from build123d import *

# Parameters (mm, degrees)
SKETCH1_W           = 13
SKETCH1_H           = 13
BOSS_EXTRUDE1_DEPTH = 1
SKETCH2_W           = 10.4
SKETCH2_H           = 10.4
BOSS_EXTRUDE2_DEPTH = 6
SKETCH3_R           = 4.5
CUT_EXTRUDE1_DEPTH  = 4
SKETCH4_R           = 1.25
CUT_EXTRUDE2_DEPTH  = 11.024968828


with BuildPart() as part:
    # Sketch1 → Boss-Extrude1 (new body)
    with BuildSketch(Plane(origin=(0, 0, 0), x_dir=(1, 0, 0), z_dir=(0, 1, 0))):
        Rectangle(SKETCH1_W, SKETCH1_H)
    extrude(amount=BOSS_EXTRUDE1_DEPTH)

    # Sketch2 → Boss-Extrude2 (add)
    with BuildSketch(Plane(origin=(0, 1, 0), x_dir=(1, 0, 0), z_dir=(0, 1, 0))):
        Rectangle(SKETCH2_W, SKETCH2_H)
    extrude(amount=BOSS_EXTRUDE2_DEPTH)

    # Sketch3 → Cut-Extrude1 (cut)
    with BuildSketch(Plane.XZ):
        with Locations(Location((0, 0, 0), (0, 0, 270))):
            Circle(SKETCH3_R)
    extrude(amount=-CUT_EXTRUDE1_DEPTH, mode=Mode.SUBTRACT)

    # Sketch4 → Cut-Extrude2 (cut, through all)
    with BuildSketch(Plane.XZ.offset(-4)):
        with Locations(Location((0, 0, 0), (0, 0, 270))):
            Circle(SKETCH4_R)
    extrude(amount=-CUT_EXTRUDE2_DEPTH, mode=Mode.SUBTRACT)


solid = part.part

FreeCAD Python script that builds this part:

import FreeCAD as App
import Part
import Sketcher
from FreeCAD import Vector


def add_polygon(sketch, points):
    """Adds a closed chain of lines whose ends are joined by coincident constraints."""
    first, n = sketch.GeometryCount, len(points)
    for a, b in zip(points, points[1:] + points[:1]):
        sketch.addGeometry(Part.LineSegment(App.Vector(*a, 0), App.Vector(*b, 0)), False)
    for i in range(n):
        sketch.addConstraint(Sketcher.Constraint("Coincident", first + i, 2, first + (i + 1) % n, 1))

doc = App.newDocument("Part")
params = doc.addObject("Spreadsheet::Sheet", "Params")
for row, (alias, value) in enumerate([
    ("sketch1_width", "13 mm"),
    ("pad1_length", "1 mm"),
    ("sketch2_width", "10.4 mm"),
    ("pad2_length", "6 mm"),
    ("sketch3_diameter", "9 mm"),
    ("pocket1_length", "4 mm"),
    ("sketch4_diameter", "2.5 mm"),
], start=1):
    params.set(f"A{row}", alias)
    params.set(f"B{row}", "=" + value)
    params.setAlias(f"B{row}", alias)

body = doc.addObject("PartDesign::Body", "Body")

# Sketch on XZ plane
sketch1 = body.newObject("Sketcher::SketchObject", "Sketch")
sketch1.AttachmentSupport = (doc.getObject("XZ_Plane"), [""])
sketch1.MapMode = "FlatFace"
add_polygon(sketch1, [(-6, -6), (-6, 6), (6, 6), (6, -6)])  # lines 0-3
sketch1.addConstraint(Sketcher.Constraint("Vertical", 0))
sketch1.addConstraint(Sketcher.Constraint("Horizontal", 1))
sketch1.addConstraint(Sketcher.Constraint("Vertical", 2))
sketch1.addConstraint(Sketcher.Constraint("Horizontal", 3))
sketch1.addConstraint(Sketcher.Constraint("Symmetric", 0, 2, 2, 2, -1, 1))
sketch1.addConstraint(Sketcher.Constraint("Equal", 3, 0))
sketch1.addConstraint(Sketcher.Constraint("DistanceX", 1, 1, 1, 2, 13.0))
sketch1.setExpression("Constraints[10]", "Params.sketch1_width")
pad1 = body.newObject("PartDesign::Pad", "Pad")
pad1.Profile = sketch1
pad1.setExpression("Length", "Params.pad1_length")
pad1.Reversed = True

# Sketch on XZ plane
sketch2 = body.newObject("Sketcher::SketchObject", "Sketch001")
sketch2.AttachmentSupport = (doc.getObject("XZ_Plane"), [""])
sketch2.MapMode = "FlatFace"
sketch2.AttachmentOffset = App.Placement(Vector(0, 0, -1), App.Rotation())
add_polygon(sketch2, [(-5, -5), (-5, 5), (5, 5), (5, -5)])  # lines 0-3
sketch2.addConstraint(Sketcher.Constraint("Vertical", 0))
sketch2.addConstraint(Sketcher.Constraint("Horizontal", 1))
sketch2.addConstraint(Sketcher.Constraint("Vertical", 2))
sketch2.addConstraint(Sketcher.Constraint("Horizontal", 3))
sketch2.addConstraint(Sketcher.Constraint("Symmetric", 0, 2, 2, 2, -1, 1))
sketch2.addConstraint(Sketcher.Constraint("Equal", 3, 0))
sketch2.addConstraint(Sketcher.Constraint("DistanceX", 1, 1, 1, 2, 10.4))
sketch2.setExpression("Constraints[10]", "Params.sketch2_width")
pad2 = body.newObject("PartDesign::Pad", "Pad001")
pad2.Profile = sketch2
pad2.setExpression("Length", "Params.pad2_length")
pad2.Reversed = True

# Sketch on XZ plane
sketch3 = body.newObject("Sketcher::SketchObject", "Sketch002")
sketch3.AttachmentSupport = (doc.getObject("XZ_Plane"), [""])
sketch3.MapMode = "FlatFace"
sketch3.addGeometry(Part.Circle(Vector(0, 0, 0), Vector(0, 0, 1), 4.5), False)
sketch3.addConstraint(Sketcher.Constraint("Coincident", 0, 3, -1, 1))
sketch3.addConstraint(Sketcher.Constraint("Diameter", 0, 9.0))
sketch3.setExpression("Constraints[1]", "Params.sketch3_diameter")
pocket1 = body.newObject("PartDesign::Pocket", "Pocket")
pocket1.Profile = sketch3
pocket1.setExpression("Length", "Params.pocket1_length")

# Sketch on XZ plane
sketch4 = body.newObject("Sketcher::SketchObject", "Sketch003")
sketch4.AttachmentSupport = (doc.getObject("XZ_Plane"), [""])
sketch4.MapMode = "FlatFace"
sketch4.AttachmentOffset = App.Placement(Vector(0, 0, -4), App.Rotation())
sketch4.addGeometry(Part.Circle(Vector(0, 0, 0), Vector(0, 0, 1), 1.2), False)
sketch4.addConstraint(Sketcher.Constraint("Coincident", 0, 3, -1, 1))
sketch4.addConstraint(Sketcher.Constraint("Diameter", 0, 2.5))
sketch4.setExpression("Constraints[1]", "Params.sketch4_diameter")
pocket2 = body.newObject("PartDesign::Pocket", "Pocket001")
pocket2.Profile = sketch4
pocket2.Type = "ThroughAll"

doc.recompute()
